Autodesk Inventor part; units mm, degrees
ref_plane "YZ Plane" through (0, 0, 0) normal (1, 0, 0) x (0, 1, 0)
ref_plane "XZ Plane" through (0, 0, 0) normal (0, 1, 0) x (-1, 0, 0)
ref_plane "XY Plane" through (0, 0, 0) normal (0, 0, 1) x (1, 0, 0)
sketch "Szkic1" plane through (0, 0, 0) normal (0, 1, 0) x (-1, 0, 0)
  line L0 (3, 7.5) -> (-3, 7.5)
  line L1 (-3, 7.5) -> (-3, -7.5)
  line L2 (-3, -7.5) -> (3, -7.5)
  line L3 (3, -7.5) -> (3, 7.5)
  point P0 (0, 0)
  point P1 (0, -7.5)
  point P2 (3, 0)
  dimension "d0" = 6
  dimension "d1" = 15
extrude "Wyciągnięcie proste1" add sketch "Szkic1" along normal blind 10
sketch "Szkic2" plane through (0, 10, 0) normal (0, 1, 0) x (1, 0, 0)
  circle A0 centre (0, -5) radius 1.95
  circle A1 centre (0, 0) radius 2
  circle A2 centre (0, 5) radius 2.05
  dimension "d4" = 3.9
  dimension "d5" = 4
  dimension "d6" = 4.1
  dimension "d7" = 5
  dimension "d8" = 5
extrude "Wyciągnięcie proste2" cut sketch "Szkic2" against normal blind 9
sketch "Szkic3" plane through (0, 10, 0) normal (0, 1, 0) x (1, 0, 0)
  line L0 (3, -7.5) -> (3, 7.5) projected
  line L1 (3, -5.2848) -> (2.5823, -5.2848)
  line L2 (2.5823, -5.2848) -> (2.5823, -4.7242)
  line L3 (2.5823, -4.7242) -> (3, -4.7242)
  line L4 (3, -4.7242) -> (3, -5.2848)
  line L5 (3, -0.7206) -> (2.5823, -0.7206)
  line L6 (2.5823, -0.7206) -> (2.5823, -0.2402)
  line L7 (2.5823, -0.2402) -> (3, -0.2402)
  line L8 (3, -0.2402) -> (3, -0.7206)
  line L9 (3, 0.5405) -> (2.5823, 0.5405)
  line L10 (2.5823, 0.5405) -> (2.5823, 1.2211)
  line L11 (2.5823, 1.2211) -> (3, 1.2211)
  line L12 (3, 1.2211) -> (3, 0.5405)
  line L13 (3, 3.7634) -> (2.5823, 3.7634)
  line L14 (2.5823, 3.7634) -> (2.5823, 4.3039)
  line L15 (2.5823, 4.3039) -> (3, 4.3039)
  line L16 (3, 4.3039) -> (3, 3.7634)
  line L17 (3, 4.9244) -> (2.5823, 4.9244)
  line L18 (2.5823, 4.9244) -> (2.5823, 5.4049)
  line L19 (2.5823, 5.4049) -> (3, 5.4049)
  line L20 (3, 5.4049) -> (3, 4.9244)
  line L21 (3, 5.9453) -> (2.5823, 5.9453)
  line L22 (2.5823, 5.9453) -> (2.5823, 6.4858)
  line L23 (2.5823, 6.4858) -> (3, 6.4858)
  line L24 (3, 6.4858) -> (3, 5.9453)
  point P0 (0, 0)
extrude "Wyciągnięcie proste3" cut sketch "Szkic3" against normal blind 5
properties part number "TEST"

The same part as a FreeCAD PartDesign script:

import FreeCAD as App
import Part
import Sketcher
from FreeCAD import Vector
Q = App.Units.Quantity

doc = App.newDocument("Part")
body = doc.addObject("PartDesign::Body", "Body")

sketch1 = body.newObject("Sketcher::SketchObject", "Sketch")
sketch1.AttachmentSupport = (doc.getObject("XZ_Plane"), [""])
sketch1.MapMode = "FlatFace"
sketch1.addGeometry([
    Part.LineSegment(Vector(-3, -7.5, 0), Vector(-3, 7.5, 0)),
    Part.LineSegment(Vector(-3, 7.5, 0), Vector(3, 7.5, 0)),
    Part.LineSegment(Vector(3, 7.5, 0), Vector(3, -7.5, 0)),
    Part.LineSegment(Vector(3, -7.5, 0), Vector(-3, -7.5, 0)),
], False)
sketch1.addConstraint([
    Sketcher.Constraint("Coincident", 0, 2, 1, 1),
    Sketcher.Constraint("Coincident", 1, 2, 2, 1),
    Sketcher.Constraint("Coincident", 2, 2, 3, 1),
    Sketcher.Constraint("Coincident", 3, 2, 0, 1),
    Sketcher.Constraint("Vertical", 0),
    Sketcher.Constraint("Horizontal", 1),
    Sketcher.Constraint("Vertical", 2),
    Sketcher.Constraint("Horizontal", 3),
    Sketcher.Constraint("Symmetric", 0, 2, 2, 2, -1, 1),
    Sketcher.Constraint("DistanceX", 1, 1, 1, 2, Q("6 mm")),
    Sketcher.Constraint("DistanceY", 0, 1, 0, 2, Q("15 mm")),
])
pad1 = body.newObject("PartDesign::Pad", "Pad")
pad1.Profile = sketch1
pad1.Length = 10
pad1.Reversed = True

sketch2 = body.newObject("Sketcher::SketchObject", "Sketch001")
sketch2.AttachmentSupport = (doc.getObject("XZ_Plane"), [""])
sketch2.MapMode = "FlatFace"
sketch2.AttachmentOffset = App.Placement(Vector(0, 0, -10), App.Rotation())
sketch2.addGeometry([
    Part.Circle(Vector(0, 5, 0), Vector(0, 0, 1), 1.95),
    Part.Circle(Vector(0, 0, 0), Vector(0, 0, 1), 2),
    Part.Circle(Vector(0, -5, 0), Vector(0, 0, 1), 2.05),
], False)
sketch2.addConstraint([
    Sketcher.Constraint("Coincident", 1, 3, -1, 1),
    Sketcher.Constraint("Symmetric", 0, 3, 2, 3, -1, 1),
    Sketcher.Constraint("PointOnObject", 0, 3, -2),
    Sketcher.Constraint("Diameter", 1, Q("4 mm")),
    Sketcher.Constraint("Diameter", 0, Q("3.9 mm")),
    Sketcher.Constraint("Diameter", 2, Q("4.1 mm")),
    Sketcher.Constraint("DistanceY", -1, 1, 0, 3, Q("5 mm")),
])
pocket1 = body.newObject("PartDesign::Pocket", "Pocket")
pocket1.Profile = sketch2
pocket1.Length = 9
pocket1.Reversed = True

sketch3 = body.newObject("Sketcher::SketchObject", "Sketch002")
sketch3.AttachmentSupport = (doc.getObject("XZ_Plane"), [""])
sketch3.MapMode = "FlatFace"
sketch3.AttachmentOffset = App.Placement(Vector(0, 0, -10), App.Rotation())
sketch3.addGeometry([
    Part.LineSegment(Vector(2.5823, 5.2848, 0), Vector(3, 5.2848, 0)),
    Part.LineSegment(Vector(3, 5.2848, 0), Vector(3, 4.7242, 0)),
    Part.LineSegment(Vector(3, 4.7242, 0), Vector(2.5823, 4.7242, 0)),
    Part.LineSegment(Vector(2.5823, 4.7242, 0), Vector(2.5823, 5.2848, 0)),
    Part.LineSegment(Vector(2.5823, -5.9453, 0), Vector(3, -5.9453, 0)),
    Part.LineSegment(Vector(3, -5.9453, 0), Vector(3, -6.4858, 0)),
    Part.LineSegment(Vector(3, -6.4858, 0), Vector(2.5823, -6.4858, 0)),
    Part.LineSegment(Vector(2.5823, -6.4858, 0), Vector(2.5823, -5.9453, 0)),
    Part.LineSegment(Vector(2.5823, -4.9244, 0), Vector(3, -4.9244, 0)),
    Part.LineSegment(Vector(3, -4.9244, 0), Vector(3, -5.4049, 0)),
    Part.LineSegment(Vector(3, -5.4049, 0), Vector(2.5823, -5.4049, 0)),
    Part.LineSegment(Vector(2.5823, -5.4049, 0), Vector(2.5823, -4.9244, 0)),
    Part.LineSegment(Vector(2.5823, -3.7634, 0), Vector(3, -3.7634, 0)),
    Part.LineSegment(Vector(3, -3.7634, 0), Vector(3, -4.3039, 0)),
    Part.LineSegment(Vector(3, -4.3039, 0), Vector(2.5823, -4.3039, 0)),
    Part.LineSegment(Vector(2.5823, -4.3039, 0), Vector(2.5823, -3.7634, 0)),
    Part.LineSegment(Vector(2.5823, -0.5405, 0), Vector(3, -0.5405, 0)),
    Part.LineSegment(Vector(3, -0.5405, 0), Vector(3, -1.2211, 0)),
    Part.LineSegment(Vector(3, -1.2211, 0), Vector(2.5823, -1.2211, 0)),
    Part.LineSegment(Vector(2.5823, -1.2211, 0), Vector(2.5823, -0.5405, 0)),
    Part.LineSegment(Vector(2.5823, 0.7206, 0), Vector(3, 0.7206, 0)),
    Part.LineSegment(Vector(3, 0.7206, 0), Vector(3, 0.2402, 0)),
    Part.LineSegment(Vector(3, 0.2402, 0), Vector(2.5823, 0.2402, 0)),
    Part.LineSegment(Vector(2.5823, 0.2402, 0), Vector(2.5823, 0.7206, 0)),
], False)
sketch3.addConstraint([
    Sketcher.Constraint("Coincident", 0, 2, 1, 1),
    Sketcher.Constraint("Coincident", 1, 2, 2, 1),
    Sketcher.Constraint("Coincident", 2, 2, 3, 1),
    Sketcher.Constraint("Coincident", 3, 2, 0, 1),
    Sketcher.Constraint("Coincident", 4, 2, 5, 1),
    Sketcher.Constraint("Coincident", 5, 2, 6, 1),
    Sketcher.Constraint("Coincident", 6, 2, 7, 1),
    Sketcher.Constraint("Coincident", 7, 2, 4, 1),
    Sketcher.Constraint("Coincident", 8, 2, 9, 1),
    Sketcher.Constraint("Coincident", 9, 2, 10, 1),
    Sketcher.Constraint("Coincident", 10, 2, 11, 1),
    Sketcher.Constraint("Coincident", 11, 2, 8, 1),
    Sketcher.Constraint("Coincident", 12, 2, 13, 1),
    Sketcher.Constraint("Coincident", 13, 2, 14, 1),
    Sketcher.Constraint("Coincident", 14, 2, 15, 1),
    Sketcher.Constraint("Coincident", 15, 2, 12, 1),
    Sketcher.Constraint("Coincident", 16, 2, 17, 1),
    Sketcher.Constraint("Coincident", 17, 2, 18, 1),
    Sketcher.Constraint("Coincident", 18, 2, 19, 1),
    Sketcher.Constraint("Coincident", 19, 2, 16, 1),
    Sketcher.Constraint("Coincident", 20, 2, 21, 1),
    Sketcher.Constraint("Coincident", 21, 2, 22, 1),
    Sketcher.Constraint("Coincident", 22, 2, 23, 1),
    Sketcher.Constraint("Coincident", 23, 2, 20, 1),
    Sketcher.Constraint("Horizontal", 0),
    Sketcher.Constraint("Vertical", 1),
    Sketcher.Constraint("Horizontal", 2),
    Sketcher.Constraint("Vertical", 3),
    Sketcher.Constraint("Horizontal", 4),
    Sketcher.Constraint("Vertical", 5),
    Sketcher.Constraint("Horizontal", 6),
    Sketcher.Constraint("Vertical", 7),
    Sketcher.Constraint("Horizontal", 8),
    Sketcher.Constraint("Vertical", 9),
    Sketcher.Constraint("Horizontal", 10),
    Sketcher.Constraint("Vertical", 11),
    Sketcher.Constraint("Horizontal", 12),
    Sketcher.Constraint("Vertical", 13),
    Sketcher.Constraint("Horizontal", 14),
    Sketcher.Constraint("Vertical", 15),
    Sketcher.Constraint("Horizontal", 16),
    Sketcher.Constraint("Vertical", 17),
    Sketcher.Constraint("Horizontal", 18),
    Sketcher.Constraint("Vertical", 19),
    Sketcher.Constraint("Horizontal", 20),
    Sketcher.Constraint("Vertical", 21),
    Sketcher.Constraint("Horizontal", 22),
    Sketcher.Constraint("Vertical", 23),
    Sketcher.Constraint("Vertical", 1, 2, 4, 2),
    Sketcher.Constraint("Vertical", 3, 2, 6, 2),
    Sketcher.Constraint("Vertical", 5, 2, 8, 2),
    Sketcher.Constraint("Vertical", 7, 2, 10, 2),
    Sketcher.Constraint("Vertical", 9, 2, 12, 2),
    Sketcher.Constraint("Vertical", 11, 2, 14, 2),
    Sketcher.Constraint("Vertical", 13, 2, 16, 2),
    Sketcher.Constraint("Vertical", 15, 2, 18, 2),
    Sketcher.Constraint("Vertical", 17, 2, 20, 2),
    Sketcher.Constraint("Vertical", 19, 2, 22, 2),
    Sketcher.Constraint("Equal", 7, 13),
    Sketcher.Constraint("Equal", 11, 21),
    Sketcher.Constraint("DistanceX", -1, 1, 0, 2, Q("3 mm")),
    Sketcher.Constraint("DistanceY", 4, 2, 0, 2, Q("11.23 mm")),
    Sketcher.Constraint("DistanceY", 5, 2, 1, 2, Q("11.21 mm")),
    Sketcher.Constraint("DistanceX", 0, 1, 0, 2, Q("0.4177 mm")),
    Sketcher.Constraint("DistanceY", 1, 2, 1, 1, Q("0.5606 mm")),
    Sketcher.Constraint("DistanceY", 9, 2, 9, 1, Q("0.4805 mm")),
    Sketcher.Constraint("DistanceY", 17, 2, 17, 1, Q("0.6806 mm")),
    Sketcher.Constraint("DistanceY", 9, 2, -1, 1, Q("5.405 mm")),
    Sketcher.Constraint("DistanceY", 13, 2, -1, 1, Q("4.304 mm")),
    Sketcher.Constraint("DistanceY", 17, 2, -1, 1, Q("1.221 mm")),
    Sketcher.Constraint("DistanceY", 4, 2, 8, 2, Q("1.021 mm")),
    Sketcher.Constraint("DistanceY", 16, 2, 20, 2, Q("1.261 mm")),
])
pocket2 = body.newObject("PartDesign::Pocket", "Pocket001")
pocket2.Profile = sketch3
pocket2.Length = 5
pocket2.Reversed = True

doc.recompute()
